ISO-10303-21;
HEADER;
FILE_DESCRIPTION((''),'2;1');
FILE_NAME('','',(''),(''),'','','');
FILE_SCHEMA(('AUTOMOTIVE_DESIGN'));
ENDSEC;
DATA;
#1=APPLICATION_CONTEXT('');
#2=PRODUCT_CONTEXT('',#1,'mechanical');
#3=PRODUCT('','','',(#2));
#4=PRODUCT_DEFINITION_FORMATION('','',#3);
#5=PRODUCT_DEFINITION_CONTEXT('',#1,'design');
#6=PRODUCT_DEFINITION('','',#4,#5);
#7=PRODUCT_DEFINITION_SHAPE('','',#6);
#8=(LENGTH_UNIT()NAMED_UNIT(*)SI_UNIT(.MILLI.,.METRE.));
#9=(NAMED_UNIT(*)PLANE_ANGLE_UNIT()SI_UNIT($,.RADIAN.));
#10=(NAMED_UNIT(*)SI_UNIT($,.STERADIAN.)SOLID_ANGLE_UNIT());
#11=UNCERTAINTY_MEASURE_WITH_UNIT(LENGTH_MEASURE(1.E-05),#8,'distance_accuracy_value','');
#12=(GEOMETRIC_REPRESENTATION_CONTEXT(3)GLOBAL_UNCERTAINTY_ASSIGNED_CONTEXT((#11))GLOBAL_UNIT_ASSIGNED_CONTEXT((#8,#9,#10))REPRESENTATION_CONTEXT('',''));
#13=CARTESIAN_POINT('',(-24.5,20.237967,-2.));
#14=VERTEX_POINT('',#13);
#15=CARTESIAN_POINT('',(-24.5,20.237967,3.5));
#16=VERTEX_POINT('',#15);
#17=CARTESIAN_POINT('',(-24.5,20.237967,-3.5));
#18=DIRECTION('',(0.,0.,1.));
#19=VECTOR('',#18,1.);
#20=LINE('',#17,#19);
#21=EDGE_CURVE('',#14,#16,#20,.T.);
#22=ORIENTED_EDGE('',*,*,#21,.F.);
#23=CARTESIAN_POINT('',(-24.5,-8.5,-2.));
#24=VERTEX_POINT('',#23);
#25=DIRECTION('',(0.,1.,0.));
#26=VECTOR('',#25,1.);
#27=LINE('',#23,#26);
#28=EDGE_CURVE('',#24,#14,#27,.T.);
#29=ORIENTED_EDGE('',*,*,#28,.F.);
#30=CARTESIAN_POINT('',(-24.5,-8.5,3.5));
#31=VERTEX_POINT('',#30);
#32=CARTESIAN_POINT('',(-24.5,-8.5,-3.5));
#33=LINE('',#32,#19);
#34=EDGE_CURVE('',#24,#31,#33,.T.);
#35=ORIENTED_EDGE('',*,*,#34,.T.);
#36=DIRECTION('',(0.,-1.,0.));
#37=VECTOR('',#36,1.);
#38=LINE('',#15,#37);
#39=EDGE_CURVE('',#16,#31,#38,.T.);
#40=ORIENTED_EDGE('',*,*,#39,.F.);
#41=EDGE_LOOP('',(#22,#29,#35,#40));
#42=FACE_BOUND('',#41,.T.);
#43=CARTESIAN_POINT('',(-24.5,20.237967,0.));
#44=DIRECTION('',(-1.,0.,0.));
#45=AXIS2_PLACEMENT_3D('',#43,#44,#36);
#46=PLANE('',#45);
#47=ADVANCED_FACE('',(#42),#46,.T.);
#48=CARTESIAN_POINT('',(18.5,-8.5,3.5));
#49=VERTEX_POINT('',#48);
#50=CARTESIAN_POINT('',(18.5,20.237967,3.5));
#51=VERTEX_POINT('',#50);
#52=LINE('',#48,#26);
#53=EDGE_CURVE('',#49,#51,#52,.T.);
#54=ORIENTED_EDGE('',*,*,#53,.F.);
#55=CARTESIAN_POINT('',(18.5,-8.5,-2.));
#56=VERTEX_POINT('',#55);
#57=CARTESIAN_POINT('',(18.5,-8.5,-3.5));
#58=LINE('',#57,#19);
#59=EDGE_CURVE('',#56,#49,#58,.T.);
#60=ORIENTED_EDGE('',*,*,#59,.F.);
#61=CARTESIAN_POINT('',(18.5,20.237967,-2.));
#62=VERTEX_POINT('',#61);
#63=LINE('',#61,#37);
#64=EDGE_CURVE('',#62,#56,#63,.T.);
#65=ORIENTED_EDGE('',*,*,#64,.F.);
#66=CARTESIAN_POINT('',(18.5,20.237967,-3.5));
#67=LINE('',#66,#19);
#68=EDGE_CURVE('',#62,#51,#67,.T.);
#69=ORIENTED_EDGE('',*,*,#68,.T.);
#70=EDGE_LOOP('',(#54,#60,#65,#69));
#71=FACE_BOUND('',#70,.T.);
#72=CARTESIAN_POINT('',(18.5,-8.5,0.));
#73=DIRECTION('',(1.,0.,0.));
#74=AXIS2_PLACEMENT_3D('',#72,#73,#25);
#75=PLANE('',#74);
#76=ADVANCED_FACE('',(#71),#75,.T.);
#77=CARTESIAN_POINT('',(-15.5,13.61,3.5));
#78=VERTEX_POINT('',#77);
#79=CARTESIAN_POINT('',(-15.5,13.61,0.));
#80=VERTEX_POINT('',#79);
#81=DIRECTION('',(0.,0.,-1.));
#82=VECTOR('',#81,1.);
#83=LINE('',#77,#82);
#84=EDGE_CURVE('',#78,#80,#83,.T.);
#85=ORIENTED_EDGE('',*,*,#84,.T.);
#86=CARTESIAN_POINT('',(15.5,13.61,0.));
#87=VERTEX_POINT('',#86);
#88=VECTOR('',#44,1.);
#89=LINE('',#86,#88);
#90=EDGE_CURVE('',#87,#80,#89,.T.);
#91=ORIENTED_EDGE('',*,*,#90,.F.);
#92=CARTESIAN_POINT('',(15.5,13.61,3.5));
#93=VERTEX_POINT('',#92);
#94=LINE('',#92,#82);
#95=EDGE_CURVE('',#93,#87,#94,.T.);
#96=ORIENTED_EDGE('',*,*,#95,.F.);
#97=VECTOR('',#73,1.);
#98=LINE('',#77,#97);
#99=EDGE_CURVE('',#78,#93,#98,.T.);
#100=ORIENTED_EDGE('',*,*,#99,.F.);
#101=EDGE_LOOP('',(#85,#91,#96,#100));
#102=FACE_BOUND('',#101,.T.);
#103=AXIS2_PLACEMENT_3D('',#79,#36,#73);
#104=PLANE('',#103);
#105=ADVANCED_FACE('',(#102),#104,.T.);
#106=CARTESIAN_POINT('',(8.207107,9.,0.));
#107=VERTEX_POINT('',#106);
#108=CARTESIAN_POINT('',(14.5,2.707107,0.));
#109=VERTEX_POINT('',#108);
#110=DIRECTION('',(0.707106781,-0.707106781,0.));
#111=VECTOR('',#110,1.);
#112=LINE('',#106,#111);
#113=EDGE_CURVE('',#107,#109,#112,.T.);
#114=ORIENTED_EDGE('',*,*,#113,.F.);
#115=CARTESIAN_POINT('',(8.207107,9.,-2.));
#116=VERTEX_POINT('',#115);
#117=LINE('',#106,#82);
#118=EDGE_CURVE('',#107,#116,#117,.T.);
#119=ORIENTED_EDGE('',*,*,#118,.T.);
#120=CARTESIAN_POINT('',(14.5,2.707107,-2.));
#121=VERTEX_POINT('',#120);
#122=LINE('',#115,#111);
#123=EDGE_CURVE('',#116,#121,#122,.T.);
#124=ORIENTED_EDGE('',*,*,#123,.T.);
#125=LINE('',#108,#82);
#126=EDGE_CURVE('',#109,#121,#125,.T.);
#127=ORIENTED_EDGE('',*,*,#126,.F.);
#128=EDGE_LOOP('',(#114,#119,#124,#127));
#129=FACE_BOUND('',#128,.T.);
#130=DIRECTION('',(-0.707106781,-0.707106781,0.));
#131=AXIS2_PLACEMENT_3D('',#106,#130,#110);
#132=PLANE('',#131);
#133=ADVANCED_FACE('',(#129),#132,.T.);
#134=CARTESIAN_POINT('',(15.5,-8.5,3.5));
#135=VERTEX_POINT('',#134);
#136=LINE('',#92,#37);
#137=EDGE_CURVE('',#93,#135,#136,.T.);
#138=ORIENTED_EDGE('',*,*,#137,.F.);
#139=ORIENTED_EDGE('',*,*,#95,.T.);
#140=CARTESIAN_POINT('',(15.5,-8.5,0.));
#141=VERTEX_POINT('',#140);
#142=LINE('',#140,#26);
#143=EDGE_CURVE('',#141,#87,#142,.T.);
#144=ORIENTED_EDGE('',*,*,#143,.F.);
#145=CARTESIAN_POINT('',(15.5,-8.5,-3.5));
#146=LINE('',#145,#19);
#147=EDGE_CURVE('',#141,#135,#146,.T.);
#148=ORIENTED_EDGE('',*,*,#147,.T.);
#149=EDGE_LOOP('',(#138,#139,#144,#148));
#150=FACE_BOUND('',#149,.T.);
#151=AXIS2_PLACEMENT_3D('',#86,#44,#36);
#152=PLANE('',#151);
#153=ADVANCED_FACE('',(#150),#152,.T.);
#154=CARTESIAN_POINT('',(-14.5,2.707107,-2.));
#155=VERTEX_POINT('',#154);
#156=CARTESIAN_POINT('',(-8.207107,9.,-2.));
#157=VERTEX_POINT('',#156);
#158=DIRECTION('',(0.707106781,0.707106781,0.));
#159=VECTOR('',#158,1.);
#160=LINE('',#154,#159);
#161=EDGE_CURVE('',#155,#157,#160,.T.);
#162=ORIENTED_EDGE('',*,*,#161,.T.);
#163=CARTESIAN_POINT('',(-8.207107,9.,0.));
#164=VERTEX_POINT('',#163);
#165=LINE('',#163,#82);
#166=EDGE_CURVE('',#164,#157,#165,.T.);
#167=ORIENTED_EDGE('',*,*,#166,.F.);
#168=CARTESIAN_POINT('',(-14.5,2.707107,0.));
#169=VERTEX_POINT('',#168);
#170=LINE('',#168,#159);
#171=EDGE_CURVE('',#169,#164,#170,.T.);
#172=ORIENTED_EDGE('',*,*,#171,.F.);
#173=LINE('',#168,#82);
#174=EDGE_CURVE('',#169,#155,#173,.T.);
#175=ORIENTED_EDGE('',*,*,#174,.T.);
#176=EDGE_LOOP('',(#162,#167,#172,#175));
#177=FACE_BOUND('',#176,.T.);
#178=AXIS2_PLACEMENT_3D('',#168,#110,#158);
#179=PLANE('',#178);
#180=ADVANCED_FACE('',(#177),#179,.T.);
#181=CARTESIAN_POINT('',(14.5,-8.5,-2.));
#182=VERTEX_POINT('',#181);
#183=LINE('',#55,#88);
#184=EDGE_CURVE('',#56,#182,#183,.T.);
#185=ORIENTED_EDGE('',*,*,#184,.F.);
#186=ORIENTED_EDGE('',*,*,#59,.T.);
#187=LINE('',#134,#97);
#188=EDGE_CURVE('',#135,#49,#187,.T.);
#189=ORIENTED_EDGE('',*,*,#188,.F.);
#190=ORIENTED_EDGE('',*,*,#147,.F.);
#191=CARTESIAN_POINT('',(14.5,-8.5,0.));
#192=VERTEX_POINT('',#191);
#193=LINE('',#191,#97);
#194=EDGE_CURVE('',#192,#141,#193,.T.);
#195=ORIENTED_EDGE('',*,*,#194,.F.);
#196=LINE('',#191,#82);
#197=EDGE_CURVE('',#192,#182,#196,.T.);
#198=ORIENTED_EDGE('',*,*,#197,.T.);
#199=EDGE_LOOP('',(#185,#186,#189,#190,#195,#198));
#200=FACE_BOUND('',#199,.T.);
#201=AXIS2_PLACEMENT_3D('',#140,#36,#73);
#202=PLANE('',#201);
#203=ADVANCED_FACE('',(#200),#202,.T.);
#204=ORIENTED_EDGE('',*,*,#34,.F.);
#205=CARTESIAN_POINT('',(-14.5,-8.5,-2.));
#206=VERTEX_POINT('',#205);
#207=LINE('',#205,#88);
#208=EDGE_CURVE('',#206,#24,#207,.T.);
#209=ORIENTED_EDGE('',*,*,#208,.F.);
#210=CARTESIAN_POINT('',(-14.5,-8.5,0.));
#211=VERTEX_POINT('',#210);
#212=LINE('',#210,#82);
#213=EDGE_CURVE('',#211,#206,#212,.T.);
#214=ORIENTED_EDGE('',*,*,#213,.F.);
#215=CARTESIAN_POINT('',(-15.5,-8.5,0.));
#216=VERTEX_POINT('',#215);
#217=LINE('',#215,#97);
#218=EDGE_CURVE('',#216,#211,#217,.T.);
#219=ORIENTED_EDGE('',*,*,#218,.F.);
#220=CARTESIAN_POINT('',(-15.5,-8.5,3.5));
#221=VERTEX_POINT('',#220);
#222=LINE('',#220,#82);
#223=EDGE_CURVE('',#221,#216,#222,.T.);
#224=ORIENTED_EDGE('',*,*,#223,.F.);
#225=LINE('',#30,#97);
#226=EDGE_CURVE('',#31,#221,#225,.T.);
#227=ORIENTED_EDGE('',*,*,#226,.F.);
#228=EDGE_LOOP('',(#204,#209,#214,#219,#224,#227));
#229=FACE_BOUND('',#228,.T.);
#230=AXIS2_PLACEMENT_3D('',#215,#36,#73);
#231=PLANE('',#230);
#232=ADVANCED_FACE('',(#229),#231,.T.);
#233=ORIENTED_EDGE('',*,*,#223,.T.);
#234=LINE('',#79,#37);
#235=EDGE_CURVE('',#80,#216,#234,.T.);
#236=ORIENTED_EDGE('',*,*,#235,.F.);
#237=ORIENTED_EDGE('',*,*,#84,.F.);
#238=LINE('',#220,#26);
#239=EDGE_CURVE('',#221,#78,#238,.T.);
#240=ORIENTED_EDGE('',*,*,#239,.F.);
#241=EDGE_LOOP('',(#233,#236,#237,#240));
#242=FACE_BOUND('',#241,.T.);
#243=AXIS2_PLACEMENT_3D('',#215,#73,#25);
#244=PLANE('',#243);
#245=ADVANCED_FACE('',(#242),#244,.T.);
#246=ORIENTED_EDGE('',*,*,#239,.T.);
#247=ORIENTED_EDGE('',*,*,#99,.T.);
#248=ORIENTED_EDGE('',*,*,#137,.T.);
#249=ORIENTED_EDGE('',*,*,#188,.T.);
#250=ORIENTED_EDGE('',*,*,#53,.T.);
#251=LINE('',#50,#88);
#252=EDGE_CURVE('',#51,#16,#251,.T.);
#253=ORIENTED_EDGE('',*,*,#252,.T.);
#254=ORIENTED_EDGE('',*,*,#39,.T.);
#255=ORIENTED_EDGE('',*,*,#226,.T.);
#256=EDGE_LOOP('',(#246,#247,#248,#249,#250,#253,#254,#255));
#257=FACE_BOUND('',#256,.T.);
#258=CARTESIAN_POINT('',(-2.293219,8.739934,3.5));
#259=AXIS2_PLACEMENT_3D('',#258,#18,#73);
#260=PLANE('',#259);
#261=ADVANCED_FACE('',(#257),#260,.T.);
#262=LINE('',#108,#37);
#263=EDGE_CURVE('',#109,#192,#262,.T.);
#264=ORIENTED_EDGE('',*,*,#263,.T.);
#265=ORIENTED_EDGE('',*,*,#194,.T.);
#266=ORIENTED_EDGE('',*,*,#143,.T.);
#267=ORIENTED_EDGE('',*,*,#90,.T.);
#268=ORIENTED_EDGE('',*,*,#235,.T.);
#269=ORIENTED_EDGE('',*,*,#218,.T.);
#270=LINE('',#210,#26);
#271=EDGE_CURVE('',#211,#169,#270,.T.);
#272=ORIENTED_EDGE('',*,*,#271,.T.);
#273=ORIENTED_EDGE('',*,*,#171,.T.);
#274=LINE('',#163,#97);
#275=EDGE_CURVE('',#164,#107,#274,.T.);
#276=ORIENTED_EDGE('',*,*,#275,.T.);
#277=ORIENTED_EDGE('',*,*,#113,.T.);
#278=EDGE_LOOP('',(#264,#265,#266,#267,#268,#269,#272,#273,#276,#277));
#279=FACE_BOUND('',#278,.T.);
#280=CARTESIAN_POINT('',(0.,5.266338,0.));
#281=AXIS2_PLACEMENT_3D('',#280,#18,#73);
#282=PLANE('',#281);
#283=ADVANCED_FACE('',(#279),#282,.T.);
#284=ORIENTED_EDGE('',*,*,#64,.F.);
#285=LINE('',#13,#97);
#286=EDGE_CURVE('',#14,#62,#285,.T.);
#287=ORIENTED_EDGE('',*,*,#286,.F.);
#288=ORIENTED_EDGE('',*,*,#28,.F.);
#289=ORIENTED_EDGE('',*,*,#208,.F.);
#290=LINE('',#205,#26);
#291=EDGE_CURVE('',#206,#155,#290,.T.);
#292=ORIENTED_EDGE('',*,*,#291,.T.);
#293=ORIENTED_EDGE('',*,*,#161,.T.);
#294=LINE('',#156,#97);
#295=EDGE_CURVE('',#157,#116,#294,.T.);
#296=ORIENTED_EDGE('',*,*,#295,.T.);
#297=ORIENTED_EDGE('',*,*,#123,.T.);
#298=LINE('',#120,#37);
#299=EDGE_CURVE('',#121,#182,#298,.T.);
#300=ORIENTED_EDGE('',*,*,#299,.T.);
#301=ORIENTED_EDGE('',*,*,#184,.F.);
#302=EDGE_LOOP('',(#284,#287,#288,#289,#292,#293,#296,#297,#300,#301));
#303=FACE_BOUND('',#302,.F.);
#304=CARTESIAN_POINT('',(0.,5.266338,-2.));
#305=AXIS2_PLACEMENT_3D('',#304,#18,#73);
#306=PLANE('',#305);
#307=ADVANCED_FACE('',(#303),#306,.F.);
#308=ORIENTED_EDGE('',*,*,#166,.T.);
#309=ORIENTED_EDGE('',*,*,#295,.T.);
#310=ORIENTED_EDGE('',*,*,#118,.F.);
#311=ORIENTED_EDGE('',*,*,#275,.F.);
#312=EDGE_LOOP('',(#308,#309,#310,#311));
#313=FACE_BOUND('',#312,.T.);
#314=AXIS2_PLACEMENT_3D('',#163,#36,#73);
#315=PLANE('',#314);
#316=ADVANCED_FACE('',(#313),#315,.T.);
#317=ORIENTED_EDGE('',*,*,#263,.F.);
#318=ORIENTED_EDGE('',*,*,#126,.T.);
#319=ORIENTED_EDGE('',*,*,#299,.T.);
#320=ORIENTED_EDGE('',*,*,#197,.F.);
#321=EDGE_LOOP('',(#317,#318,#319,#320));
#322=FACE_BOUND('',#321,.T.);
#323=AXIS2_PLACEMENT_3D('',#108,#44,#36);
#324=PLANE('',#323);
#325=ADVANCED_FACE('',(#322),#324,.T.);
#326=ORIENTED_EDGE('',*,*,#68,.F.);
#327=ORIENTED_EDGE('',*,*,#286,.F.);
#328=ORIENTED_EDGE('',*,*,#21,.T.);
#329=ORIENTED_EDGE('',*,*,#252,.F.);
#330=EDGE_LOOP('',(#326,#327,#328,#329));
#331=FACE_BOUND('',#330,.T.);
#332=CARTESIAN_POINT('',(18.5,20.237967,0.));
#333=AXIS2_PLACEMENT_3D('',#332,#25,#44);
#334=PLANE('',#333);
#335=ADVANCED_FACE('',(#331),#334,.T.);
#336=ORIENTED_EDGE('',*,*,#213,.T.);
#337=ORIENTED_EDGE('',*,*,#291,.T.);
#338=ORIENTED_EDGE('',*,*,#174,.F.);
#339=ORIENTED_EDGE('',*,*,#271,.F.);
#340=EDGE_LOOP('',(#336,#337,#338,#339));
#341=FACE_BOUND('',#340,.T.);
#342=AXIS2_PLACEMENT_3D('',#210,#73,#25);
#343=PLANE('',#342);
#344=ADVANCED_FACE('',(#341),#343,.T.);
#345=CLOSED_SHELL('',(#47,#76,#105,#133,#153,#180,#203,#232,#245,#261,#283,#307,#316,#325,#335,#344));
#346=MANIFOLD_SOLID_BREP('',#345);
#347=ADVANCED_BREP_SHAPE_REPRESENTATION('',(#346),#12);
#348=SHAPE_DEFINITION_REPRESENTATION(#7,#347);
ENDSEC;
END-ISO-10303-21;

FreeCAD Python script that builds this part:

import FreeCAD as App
import Part
import Sketcher

doc = App.newDocument("Part")
body = doc.addObject("PartDesign::Body", "Body")

sketch1 = body.newObject("Sketcher::SketchObject", "Sketch")
sketch1.AttachmentSupport = (doc.getObject("XY_Plane"), [""])
sketch1.MapMode = "FlatFace"
sketch1.addGeometry([
    Part.LineSegment(App.Vector(15.5, 13.61, 0), App.Vector(15.5, -8.5, 0)),
    Part.LineSegment(App.Vector(15.5, -8.5, 0), App.Vector(18.5, -8.5, 0)),
    Part.LineSegment(App.Vector(18.5, -8.5, 0), App.Vector(18.5, 20.237967, 0)),
    Part.LineSegment(App.Vector(18.5, 20.237967, 0), App.Vector(-24.5, 20.237967, 0)),
    Part.LineSegment(App.Vector(-24.5, 20.237967, 0), App.Vector(-24.5, -8.5, 0)),
    Part.LineSegment(App.Vector(-24.5, -8.5, 0), App.Vector(-15.5, -8.5, 0)),
    Part.LineSegment(App.Vector(-15.5, -8.5, 0), App.Vector(-15.5, 13.61, 0)),
    Part.LineSegment(App.Vector(-15.5, 13.61, 0), App.Vector(15.5, 13.61, 0)),
], False)
sketch1.addConstraint([
    Sketcher.Constraint("Coincident", 0, 2, 1, 1),
    Sketcher.Constraint("Coincident", 1, 2, 2, 1),
    Sketcher.Constraint("Coincident", 2, 2, 3, 1),
    Sketcher.Constraint("Coincident", 3, 2, 4, 1),
    Sketcher.Constraint("Coincident", 4, 2, 5, 1),
    Sketcher.Constraint("Coincident", 5, 2, 6, 1),
    Sketcher.Constraint("Coincident", 6, 2, 7, 1),
    Sketcher.Constraint("Coincident", 7, 2, 0, 1),
    Sketcher.Constraint("Vertical", 0),
    Sketcher.Constraint("Horizontal", 1),
    Sketcher.Constraint("Vertical", 2),
    Sketcher.Constraint("Horizontal", 3),
    Sketcher.Constraint("Vertical", 4),
    Sketcher.Constraint("Horizontal", 5),
    Sketcher.Constraint("Vertical", 6),
    Sketcher.Constraint("Horizontal", 7),
    Sketcher.Constraint("Symmetric", 0, 2, 5, 2, -2),
    Sketcher.Constraint("DistanceX", 1, 1, 1, 2, 3.0),
    Sketcher.Constraint("DistanceX", 3, 2, 3, 1, 43.0),
    Sketcher.Constraint("DistanceX", 5, 1, 5, 2, 9.0),
    Sketcher.Constraint("DistanceY", 0, 2, 0, 1, 22.11),
    Sketcher.Constraint("DistanceY", 0, 2, -1, 1, 8.5),
    Sketcher.Constraint("DistanceY", 2, 1, 2, 2, 28.737967),
])
pad1 = body.newObject("PartDesign::Pad", "Pad")
pad1.Profile = sketch1
pad1.Length = 7
pad1.Midplane = True

sketch2 = body.newObject("Sketcher::SketchObject", "Sketch001")
sketch2.AttachmentSupport = (doc.getObject("XY_Plane"), [""])
sketch2.MapMode = "FlatFace"
sketch2.addGeometry([
    Part.LineSegment(App.Vector(8.207107, 9, 0), App.Vector(14.5, 2.707107, 0)),
    Part.LineSegment(App.Vector(14.5, 2.707107, 0), App.Vector(14.5, -8.5, 0)),
    Part.LineSegment(App.Vector(14.5, -8.5, 0), App.Vector(15.5, -8.5, 0)),
    Part.LineSegment(App.Vector(15.5, -8.5, 0), App.Vector(15.5, 13.61, 0)),
    Part.LineSegment(App.Vector(15.5, 13.61, 0), App.Vector(-15.5, 13.61, 0)),
    Part.LineSegment(App.Vector(-15.5, 13.61, 0), App.Vector(-15.5, -8.5, 0)),
    Part.LineSegment(App.Vector(-15.5, -8.5, 0), App.Vector(-14.5, -8.5, 0)),
    Part.LineSegment(App.Vector(-14.5, -8.5, 0), App.Vector(-14.5, 2.707107, 0)),
    Part.LineSegment(App.Vector(-14.5, 2.707107, 0), App.Vector(-8.207107, 9, 0)),
    Part.LineSegment(App.Vector(-8.207107, 9, 0), App.Vector(8.207107, 9, 0)),
], False)
sketch2.addConstraint([
    Sketcher.Constraint("Coincident", 0, 2, 1, 1),
    Sketcher.Constraint("Coincident", 1, 2, 2, 1),
    Sketcher.Constraint("Coincident", 2, 2, 3, 1),
    Sketcher.Constraint("Coincident", 3, 2, 4, 1),
    Sketcher.Constraint("Coincident", 4, 2, 5, 1),
    Sketcher.Constraint("Coincident", 5, 2, 6, 1),
    Sketcher.Constraint("Coincident", 6, 2, 7, 1),
    Sketcher.Constraint("Coincident", 7, 2, 8, 1),
    Sketcher.Constraint("Coincident", 8, 2, 9, 1),
    Sketcher.Constraint("Coincident", 9, 2, 0, 1),
    Sketcher.Constraint("Vertical", 1),
    Sketcher.Constraint("Horizontal", 2),
    Sketcher.Constraint("Vertical", 3),
    Sketcher.Constraint("Horizontal", 4),
    Sketcher.Constraint("Vertical", 5),
    Sketcher.Constraint("Horizontal", 6),
    Sketcher.Constraint("Vertical", 7),
    Sketcher.Constraint("Horizontal", 9),
    Sketcher.Constraint("Symmetric", 2, 2, 5, 2, -2),
    Sketcher.Constraint("Symmetric", 0, 2, 7, 2, -2),
    Sketcher.Constraint("Perpendicular", 0, 8),
    Sketcher.Constraint("Equal", 0, 8),
    Sketcher.Constraint("DistanceX", 2, 1, 2, 2, 1.0),
    Sketcher.Constraint("DistanceX", 4, 2, 4, 1, 31.0),
    Sketcher.Constraint("DistanceY", -1, 1, 8, 2, 9.0),
    Sketcher.Constraint("DistanceY", 3, 1, 3, 2, 22.11),
    Sketcher.Constraint("DistanceY", 1, 2, -1, 1, 8.5),
    Sketcher.Constraint("DistanceX", 9, 1, 9, 2, 16.414214),
])
pad2 = body.newObject("PartDesign::Pad", "Pad001")
pad2.Profile = sketch2
pad2.Length = 2
pad2.Reversed = True

sketch3 = body.newObject("Sketcher::SketchObject", "Sketch002")
sketch3.AttachmentSupport = (doc.getObject("XY_Plane"), [""])
sketch3.MapMode = "FlatFace"
sketch3.AttachmentOffset = App.Placement(App.Vector(0, 0, -3.5), App.Rotation())
sketch3.addGeometry([
    Part.LineSegment(App.Vector(15.5, -8.5, 0), App.Vector(15.5, 13.61, 0)),
    Part.LineSegment(App.Vector(15.5, 13.61, 0), App.Vector(-15.5, 13.61, 0)),
    Part.LineSegment(App.Vector(-15.5, 13.61, 0), App.Vector(-15.5, -8.5, 0)),
    Part.LineSegment(App.Vector(-15.5, -8.5, 0), App.Vector(-24.5, -8.5, 0)),
    Part.LineSegment(App.Vector(-24.5, -8.5, 0), App.Vector(-24.5, 20.237967, 0)),
    Part.LineSegment(App.Vector(-24.5, 20.237967, 0), App.Vector(18.5, 20.237967, 0)),
    Part.LineSegment(App.Vector(18.5, 20.237967, 0), App.Vector(18.5, -8.5, 0)),
    Part.LineSegment(App.Vector(18.5, -8.5, 0), App.Vector(15.5, -8.5, 0)),
], False)
sketch3.addConstraint([
    Sketcher.Constraint("Coincident", 0, 2, 1, 1),
    Sketcher.Constraint("Coincident", 1, 2, 2, 1),
    Sketcher.Constraint("Coincident", 2, 2, 3, 1),
    Sketcher.Constraint("Coincident", 3, 2, 4, 1),
    Sketcher.Constraint("Coincident", 4, 2, 5, 1),
    Sketcher.Constraint("Coincident", 5, 2, 6, 1),
    Sketcher.Constraint("Coincident", 6, 2, 7, 1),
    Sketcher.Constraint("Coincident", 7, 2, 0, 1),
    Sketcher.Constraint("Vertical", 0),
    Sketcher.Constraint("Horizontal", 1),
    Sketcher.Constraint("Vertical", 2),
    Sketcher.Constraint("Horizontal", 3),
    Sketcher.Constraint("Vertical", 4),
    Sketcher.Constraint("Horizontal", 5),
    Sketcher.Constraint("Vertical", 6),
    Sketcher.Constraint("Horizontal", 7),
    Sketcher.Constraint("Symmetric", 2, 2, 7, 2, -2),
    Sketcher.Constraint("DistanceX", 1, 2, 1, 1, 31.0),
    Sketcher.Constraint("DistanceX", 3, 2, 3, 1, 9.0),
    Sketcher.Constraint("DistanceX", 5, 1, 5, 2, 43.0),
    Sketcher.Constraint("DistanceY", 0, 1, 0, 2, 22.11),
    Sketcher.Constraint("DistanceY", 2, 2, -1, 1, 8.5),
    Sketcher.Constraint("DistanceY", 4, 1, 4, 2, 28.737967),
])
pocket1 = body.newObject("PartDesign::Pocket", "Pocket")
pocket1.Profile = sketch3
pocket1.Length = 1.5
pocket1.Reversed = True

doc.recompute()
